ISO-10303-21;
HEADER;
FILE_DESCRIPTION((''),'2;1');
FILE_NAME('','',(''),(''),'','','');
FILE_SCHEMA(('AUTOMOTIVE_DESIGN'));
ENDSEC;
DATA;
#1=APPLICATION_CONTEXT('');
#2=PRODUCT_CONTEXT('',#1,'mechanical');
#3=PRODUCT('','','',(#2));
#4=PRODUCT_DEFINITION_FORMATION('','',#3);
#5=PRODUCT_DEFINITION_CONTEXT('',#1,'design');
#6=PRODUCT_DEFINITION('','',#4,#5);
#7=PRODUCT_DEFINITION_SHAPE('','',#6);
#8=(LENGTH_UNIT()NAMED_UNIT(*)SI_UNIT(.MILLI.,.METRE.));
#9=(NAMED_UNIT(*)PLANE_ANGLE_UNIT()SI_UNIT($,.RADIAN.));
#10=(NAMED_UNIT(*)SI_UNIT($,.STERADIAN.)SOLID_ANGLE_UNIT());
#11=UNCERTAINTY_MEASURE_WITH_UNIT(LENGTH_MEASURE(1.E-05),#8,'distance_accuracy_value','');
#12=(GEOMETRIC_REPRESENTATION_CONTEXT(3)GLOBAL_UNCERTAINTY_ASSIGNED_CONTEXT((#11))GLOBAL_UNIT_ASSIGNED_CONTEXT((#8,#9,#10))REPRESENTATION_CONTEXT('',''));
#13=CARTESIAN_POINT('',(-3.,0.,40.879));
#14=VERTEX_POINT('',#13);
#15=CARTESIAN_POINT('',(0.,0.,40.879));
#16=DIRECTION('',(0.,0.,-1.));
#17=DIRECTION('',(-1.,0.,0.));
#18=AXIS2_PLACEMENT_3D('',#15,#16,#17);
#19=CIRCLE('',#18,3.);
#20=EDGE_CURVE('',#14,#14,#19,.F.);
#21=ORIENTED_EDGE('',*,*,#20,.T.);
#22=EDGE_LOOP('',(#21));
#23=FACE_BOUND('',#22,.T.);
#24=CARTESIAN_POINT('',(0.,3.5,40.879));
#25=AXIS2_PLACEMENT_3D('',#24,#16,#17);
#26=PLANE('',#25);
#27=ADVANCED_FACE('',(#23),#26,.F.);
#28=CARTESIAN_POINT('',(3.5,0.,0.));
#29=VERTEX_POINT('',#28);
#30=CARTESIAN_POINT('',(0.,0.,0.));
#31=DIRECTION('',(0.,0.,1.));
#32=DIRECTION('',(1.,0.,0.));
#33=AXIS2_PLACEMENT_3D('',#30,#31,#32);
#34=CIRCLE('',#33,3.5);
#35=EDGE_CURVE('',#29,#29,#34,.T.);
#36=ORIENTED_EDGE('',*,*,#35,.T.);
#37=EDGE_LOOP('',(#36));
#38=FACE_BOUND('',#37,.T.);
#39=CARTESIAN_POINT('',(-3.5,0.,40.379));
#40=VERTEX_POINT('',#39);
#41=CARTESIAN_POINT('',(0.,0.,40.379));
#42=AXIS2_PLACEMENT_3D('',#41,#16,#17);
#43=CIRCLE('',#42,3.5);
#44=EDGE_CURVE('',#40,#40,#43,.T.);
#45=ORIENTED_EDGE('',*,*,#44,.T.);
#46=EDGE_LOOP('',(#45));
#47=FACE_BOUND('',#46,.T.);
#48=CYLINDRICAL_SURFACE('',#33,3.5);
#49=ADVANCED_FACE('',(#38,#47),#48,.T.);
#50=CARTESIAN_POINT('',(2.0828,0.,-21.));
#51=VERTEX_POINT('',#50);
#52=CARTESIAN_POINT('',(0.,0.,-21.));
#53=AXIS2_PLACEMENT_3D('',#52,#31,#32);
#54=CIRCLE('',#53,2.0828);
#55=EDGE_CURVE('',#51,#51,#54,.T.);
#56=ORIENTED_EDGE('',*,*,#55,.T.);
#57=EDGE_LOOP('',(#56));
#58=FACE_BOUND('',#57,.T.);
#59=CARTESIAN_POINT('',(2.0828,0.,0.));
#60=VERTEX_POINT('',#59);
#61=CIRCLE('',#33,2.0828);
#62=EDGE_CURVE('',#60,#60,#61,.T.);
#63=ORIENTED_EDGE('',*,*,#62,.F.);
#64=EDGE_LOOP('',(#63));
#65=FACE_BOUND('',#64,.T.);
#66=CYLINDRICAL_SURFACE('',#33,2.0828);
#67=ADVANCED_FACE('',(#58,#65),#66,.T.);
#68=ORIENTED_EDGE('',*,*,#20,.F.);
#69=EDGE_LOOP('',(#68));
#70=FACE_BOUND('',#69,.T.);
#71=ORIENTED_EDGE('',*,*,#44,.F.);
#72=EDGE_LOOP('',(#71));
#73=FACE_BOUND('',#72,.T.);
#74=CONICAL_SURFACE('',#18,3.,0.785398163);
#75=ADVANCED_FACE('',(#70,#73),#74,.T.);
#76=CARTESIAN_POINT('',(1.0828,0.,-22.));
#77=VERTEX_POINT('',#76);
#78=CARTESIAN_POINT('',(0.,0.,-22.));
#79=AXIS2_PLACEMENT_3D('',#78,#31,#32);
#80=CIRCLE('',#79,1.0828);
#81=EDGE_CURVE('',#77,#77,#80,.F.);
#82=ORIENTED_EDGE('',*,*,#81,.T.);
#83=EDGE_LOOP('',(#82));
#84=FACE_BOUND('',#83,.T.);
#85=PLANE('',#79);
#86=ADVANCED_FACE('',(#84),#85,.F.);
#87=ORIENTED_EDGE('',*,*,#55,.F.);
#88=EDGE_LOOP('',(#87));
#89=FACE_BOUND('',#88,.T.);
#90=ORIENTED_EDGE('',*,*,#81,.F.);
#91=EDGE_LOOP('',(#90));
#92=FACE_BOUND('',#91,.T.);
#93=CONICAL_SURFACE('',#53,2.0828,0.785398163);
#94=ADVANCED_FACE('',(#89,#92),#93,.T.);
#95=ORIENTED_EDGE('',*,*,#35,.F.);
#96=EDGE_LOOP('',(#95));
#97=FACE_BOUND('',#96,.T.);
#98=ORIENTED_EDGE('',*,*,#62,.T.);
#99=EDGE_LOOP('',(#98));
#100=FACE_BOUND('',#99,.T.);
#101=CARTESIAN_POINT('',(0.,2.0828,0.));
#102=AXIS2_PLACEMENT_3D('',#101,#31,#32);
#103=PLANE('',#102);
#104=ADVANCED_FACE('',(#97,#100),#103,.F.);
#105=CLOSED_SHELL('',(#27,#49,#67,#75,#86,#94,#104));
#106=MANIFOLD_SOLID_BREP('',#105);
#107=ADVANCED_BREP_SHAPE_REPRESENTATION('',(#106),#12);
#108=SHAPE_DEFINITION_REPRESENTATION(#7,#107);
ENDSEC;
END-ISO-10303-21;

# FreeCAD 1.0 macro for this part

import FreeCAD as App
import Part
import Sketcher

V = App.Vector
Q = App.Units.Quantity


def edges_at(feature, points):
    """Names of the edges that pass closest to the given points."""
    edges = feature.Shape.Edges
    near = lambda p: min(range(len(edges)), key=lambda i: edges[i].distToShape(Part.Vertex(*p))[0])
    return sorted({f"Edge{near(p) + 1}" for p in points})


def add_polygon(sketch, points):
    """Adds a closed chain of lines whose ends are joined by coincident constraints."""
    first, n = sketch.GeometryCount, len(points)
    for a, b in zip(points, points[1:] + points[:1]):
        sketch.addGeometry(Part.LineSegment(App.Vector(*a, 0), App.Vector(*b, 0)), False)
    for i in range(n):
        sketch.addConstraint(Sketcher.Constraint("Coincident", first + i, 2, first + (i + 1) % n, 1))

doc = App.newDocument("Part")
params = doc.addObject("Spreadsheet::Sheet", "Params")
for row, (alias, value) in enumerate([
    ("sketch1_height", "22 mm"),
    ("sketch1_width", "3.5 mm"),
    ("revolution_angle", "360 deg"),
    ("chamfer_size", "1 mm"),
    ("chamfer2_size", "0.5 mm"),
], start=1):
    params.set(f"A{row}", alias)
    params.set(f"B{row}", "=" + value)
    params.setAlias(f"B{row}", alias)

body = doc.addObject("PartDesign::Body", "Body")

sketch1 = doc.addObject("Sketcher::SketchObject", "Sketch")
body.addObject(sketch1)
sketch1.AttachmentSupport = (doc.YZ_Plane, [""])
sketch1.MapMode = "FlatFace"
add_polygon(sketch1, [(0, -22), (2.1, -22), (2.1, 0), (3.5, 0), (3.5, 40.9), (0, 40.9)])
sketch1.addConstraint(Sketcher.Constraint("Horizontal", 0))
sketch1.addConstraint(Sketcher.Constraint("Vertical", 1))
sketch1.addConstraint(Sketcher.Constraint("Horizontal", 2))
sketch1.addConstraint(Sketcher.Constraint("Vertical", 3))
sketch1.addConstraint(Sketcher.Constraint("Horizontal", 4))
sketch1.addConstraint(Sketcher.Constraint("Vertical", 5))
sketch1.addConstraint(Sketcher.Constraint("PointOnObject", 1, 2, -1))
sketch1.addConstraint(Sketcher.Constraint("PointOnObject", 4, 2, -2))
sketch1.addConstraint(Sketcher.Constraint("DistanceY", 1, 1, 1, 2, Q("22 mm")))
sketch1.addConstraint(Sketcher.Constraint("DistanceX", 4, 2, 4, 1, Q("3.5 mm")))
sketch1.addConstraint(Sketcher.Constraint("DistanceY", 3, 1, 3, 2, Q("40.879 mm")))
sketch1.addConstraint(Sketcher.Constraint("DistanceX", 0, 1, 0, 2, Q("2.0828 mm")))
sketch1.setExpression("Constraints[14]", "Params.sketch1_height")
sketch1.setExpression("Constraints[15]", "Params.sketch1_width")
revolution = doc.addObject("PartDesign::Revolution", "Revolution")
body.addObject(revolution)
revolution.Profile = sketch1
revolution.ReferenceAxis = (sketch1, ["V_Axis"])
revolution.setExpression("Angle", "Params.revolution_angle")
doc.recompute()

chamfer = doc.addObject("PartDesign::Chamfer", "Chamfer")
body.addObject(chamfer)
chamfer.Base = (revolution, edges_at(revolution, [(-2.083, 0, -22)]))
chamfer.setExpression("Size", "Params.chamfer_size")
doc.recompute()

chamfer2 = doc.addObject("PartDesign::Chamfer", "Chamfer001")
body.addObject(chamfer2)
chamfer2.Base = (chamfer, edges_at(chamfer, [(-3.5, 0, 40.879)]))
chamfer2.setExpression("Size", "Params.chamfer2_size")

doc.recompute()
